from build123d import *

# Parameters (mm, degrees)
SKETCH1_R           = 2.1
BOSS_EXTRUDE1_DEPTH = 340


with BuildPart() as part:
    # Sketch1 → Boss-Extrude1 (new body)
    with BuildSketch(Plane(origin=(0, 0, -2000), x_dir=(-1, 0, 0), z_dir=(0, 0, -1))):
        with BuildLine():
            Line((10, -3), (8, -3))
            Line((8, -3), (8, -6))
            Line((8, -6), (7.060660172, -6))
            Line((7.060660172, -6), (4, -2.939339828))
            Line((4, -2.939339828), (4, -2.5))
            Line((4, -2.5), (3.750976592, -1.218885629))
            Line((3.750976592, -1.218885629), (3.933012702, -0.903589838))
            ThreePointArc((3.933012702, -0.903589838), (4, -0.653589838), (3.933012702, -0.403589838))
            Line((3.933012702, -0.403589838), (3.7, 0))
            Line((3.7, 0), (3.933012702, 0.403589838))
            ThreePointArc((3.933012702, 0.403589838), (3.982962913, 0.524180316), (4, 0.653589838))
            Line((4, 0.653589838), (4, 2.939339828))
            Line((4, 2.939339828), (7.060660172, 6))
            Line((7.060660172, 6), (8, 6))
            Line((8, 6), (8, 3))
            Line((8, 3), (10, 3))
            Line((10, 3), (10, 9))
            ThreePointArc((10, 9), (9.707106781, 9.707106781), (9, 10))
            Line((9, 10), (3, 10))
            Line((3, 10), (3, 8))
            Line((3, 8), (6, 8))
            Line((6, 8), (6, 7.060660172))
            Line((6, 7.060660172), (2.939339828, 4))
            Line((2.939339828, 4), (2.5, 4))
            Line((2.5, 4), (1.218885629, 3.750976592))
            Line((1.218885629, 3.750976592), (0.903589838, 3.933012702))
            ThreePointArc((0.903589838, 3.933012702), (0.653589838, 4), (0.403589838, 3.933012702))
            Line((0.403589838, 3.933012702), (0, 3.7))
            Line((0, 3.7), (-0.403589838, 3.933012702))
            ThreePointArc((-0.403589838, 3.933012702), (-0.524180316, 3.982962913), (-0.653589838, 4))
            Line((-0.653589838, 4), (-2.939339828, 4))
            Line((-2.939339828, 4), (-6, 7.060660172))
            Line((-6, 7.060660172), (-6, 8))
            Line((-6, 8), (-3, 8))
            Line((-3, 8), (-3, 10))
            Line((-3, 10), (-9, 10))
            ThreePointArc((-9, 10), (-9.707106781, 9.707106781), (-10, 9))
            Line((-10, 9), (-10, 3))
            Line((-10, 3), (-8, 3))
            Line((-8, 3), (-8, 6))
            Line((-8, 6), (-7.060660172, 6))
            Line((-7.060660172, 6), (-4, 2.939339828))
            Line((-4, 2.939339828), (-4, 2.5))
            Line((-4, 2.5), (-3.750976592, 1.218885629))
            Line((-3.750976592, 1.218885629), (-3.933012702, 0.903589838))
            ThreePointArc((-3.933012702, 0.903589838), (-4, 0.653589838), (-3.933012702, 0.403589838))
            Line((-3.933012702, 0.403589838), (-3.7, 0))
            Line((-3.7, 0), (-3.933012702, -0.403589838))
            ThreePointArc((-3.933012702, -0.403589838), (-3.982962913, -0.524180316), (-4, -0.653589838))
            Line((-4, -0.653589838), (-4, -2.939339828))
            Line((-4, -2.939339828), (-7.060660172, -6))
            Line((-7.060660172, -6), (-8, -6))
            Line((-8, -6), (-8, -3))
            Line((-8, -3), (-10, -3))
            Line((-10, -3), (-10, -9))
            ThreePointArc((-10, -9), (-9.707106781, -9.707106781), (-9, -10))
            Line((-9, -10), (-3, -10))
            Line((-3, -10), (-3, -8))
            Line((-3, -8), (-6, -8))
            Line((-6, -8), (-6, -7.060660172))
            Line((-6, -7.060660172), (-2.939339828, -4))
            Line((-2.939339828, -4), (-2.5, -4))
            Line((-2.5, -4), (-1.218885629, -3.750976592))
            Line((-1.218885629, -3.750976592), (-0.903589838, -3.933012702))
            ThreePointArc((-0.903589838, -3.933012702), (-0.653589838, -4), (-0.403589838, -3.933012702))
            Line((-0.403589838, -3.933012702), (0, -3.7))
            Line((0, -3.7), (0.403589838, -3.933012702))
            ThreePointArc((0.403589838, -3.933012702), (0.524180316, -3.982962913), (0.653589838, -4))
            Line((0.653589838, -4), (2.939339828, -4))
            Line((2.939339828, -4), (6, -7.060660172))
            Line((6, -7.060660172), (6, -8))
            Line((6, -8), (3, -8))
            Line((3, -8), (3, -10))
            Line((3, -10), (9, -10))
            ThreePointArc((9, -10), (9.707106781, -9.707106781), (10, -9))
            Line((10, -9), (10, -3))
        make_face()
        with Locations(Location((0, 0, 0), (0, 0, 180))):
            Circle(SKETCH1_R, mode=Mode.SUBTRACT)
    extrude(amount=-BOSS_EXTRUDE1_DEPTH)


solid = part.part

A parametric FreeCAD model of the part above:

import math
import FreeCAD as App
import Part
import Sketcher

V = App.Vector
Q = App.Units.Quantity

doc = App.newDocument("Part")
body = doc.addObject("PartDesign::Body", "Body")

sketch1 = body.newObject("Sketcher::SketchObject", "Sketch")
sketch1.AttachmentSupport = (doc.getObject("XY_Plane"), [""])
sketch1.MapMode = "FlatFace"
sketch1.AttachmentOffset = App.Placement(V(0, 0, -2000), App.Rotation())
sketch1.addGeometry([
    Part.LineSegment(V(-10, -3, 0), V(-8, -3, 0)),
    Part.LineSegment(V(-8, -3, 0), V(-8, -6, 0)),
    Part.LineSegment(V(-8, -6, 0), V(-7.06066, -6, 0)),
    Part.LineSegment(V(-7.06066, -6, 0), V(-4, -2.93934, 0)),
    Part.LineSegment(V(-4, -2.93934, 0), V(-4, -2.5, 0)),
    Part.LineSegment(V(-4, -2.5, 0), V(-3.750977, -1.218886, 0)),
    Part.LineSegment(V(-3.750977, -1.218886, 0), V(-3.933013, -0.90359, 0)),
    Part.ArcOfCircle(Part.Circle(V(-3.5, -0.65359, 0), V(0, 0, 1), 0.5), math.radians(150), math.radians(210)),
    Part.LineSegment(V(-3.933013, -0.40359, 0), V(-3.7, 0, 0)),
    Part.LineSegment(V(-3.7, 0, 0), V(-3.933013, 0.40359, 0)),
    Part.ArcOfCircle(Part.Circle(V(-3.5, 0.65359, 0), V(0, 0, 1), 0.5), math.radians(-180), math.radians(-150)),
    Part.LineSegment(V(-4, 0.65359, 0), V(-4, 2.93934, 0)),
    Part.LineSegment(V(-4, 2.93934, 0), V(-7.06066, 6, 0)),
    Part.LineSegment(V(-7.06066, 6, 0), V(-8, 6, 0)),
    Part.LineSegment(V(-8, 6, 0), V(-8, 3, 0)),
    Part.LineSegment(V(-8, 3, 0), V(-10, 3, 0)),
    Part.LineSegment(V(-10, 3, 0), V(-10, 9, 0)),
    Part.ArcOfCircle(Part.Circle(V(-9, 9, 0), V(0, 0, 1), 1), math.radians(90), math.radians(180)),
    Part.LineSegment(V(-9, 10, 0), V(-3, 10, 0)),
    Part.LineSegment(V(-3, 10, 0), V(-3, 8, 0)),
    Part.LineSegment(V(-3, 8, 0), V(-6, 8, 0)),
    Part.LineSegment(V(-6, 8, 0), V(-6, 7.06066, 0)),
    Part.LineSegment(V(-6, 7.06066, 0), V(-2.93934, 4, 0)),
    Part.LineSegment(V(-2.93934, 4, 0), V(-2.5, 4, 0)),
    Part.LineSegment(V(-2.5, 4, 0), V(-1.218886, 3.750977, 0)),
    Part.LineSegment(V(-1.218886, 3.750977, 0), V(-0.90359, 3.933013, 0)),
    Part.ArcOfCircle(Part.Circle(V(-0.65359, 3.5, 0), V(0, 0, 1), 0.5), math.radians(60), math.radians(120)),
    Part.LineSegment(V(-0.40359, 3.933013, 0), V(0, 3.7, 0)),
    Part.LineSegment(V(0, 3.7, 0), V(0.40359, 3.933013, 0)),
    Part.ArcOfCircle(Part.Circle(V(0.65359, 3.5, 0), V(0, 0, 1), 0.5), math.radians(90), math.radians(120)),
    Part.LineSegment(V(0.65359, 4, 0), V(2.93934, 4, 0)),
    Part.LineSegment(V(2.93934, 4, 0), V(6, 7.06066, 0)),
    Part.LineSegment(V(6, 7.06066, 0), V(6, 8, 0)),
    Part.LineSegment(V(6, 8, 0), V(3, 8, 0)),
    Part.LineSegment(V(3, 8, 0), V(3, 10, 0)),
    Part.LineSegment(V(3, 10, 0), V(9, 10, 0)),
    Part.ArcOfCircle(Part.Circle(V(9, 9, 0), V(0, 0, 1), 1), math.radians(0), math.radians(90)),
    Part.LineSegment(V(10, 9, 0), V(10, 3, 0)),
    Part.LineSegment(V(10, 3, 0), V(8, 3, 0)),
    Part.LineSegment(V(8, 3, 0), V(8, 6, 0)),
    Part.LineSegment(V(8, 6, 0), V(7.06066, 6, 0)),
    Part.LineSegment(V(7.06066, 6, 0), V(4, 2.93934, 0)),
    Part.LineSegment(V(4, 2.93934, 0), V(4, 2.5, 0)),
    Part.LineSegment(V(4, 2.5, 0), V(3.750977, 1.218886, 0)),
    Part.LineSegment(V(3.750977, 1.218886, 0), V(3.933013, 0.90359, 0)),
    Part.ArcOfCircle(Part.Circle(V(3.5, 0.65359, 0), V(0, 0, 1), 0.5), math.radians(-30), math.radians(30)),
    Part.LineSegment(V(3.933013, 0.40359, 0), V(3.7, 0, 0)),
    Part.LineSegment(V(3.7, 0, 0), V(3.933013, -0.40359, 0)),
    Part.ArcOfCircle(Part.Circle(V(3.5, -0.65359, 0), V(0, 0, 1), 0.5), math.radians(0), math.radians(30)),
    Part.LineSegment(V(4, -0.65359, 0), V(4, -2.93934, 0)),
    Part.LineSegment(V(4, -2.93934, 0), V(7.06066, -6, 0)),
    Part.LineSegment(V(7.06066, -6, 0), V(8, -6, 0)),
    Part.LineSegment(V(8, -6, 0), V(8, -3, 0)),
    Part.LineSegment(V(8, -3, 0), V(10, -3, 0)),
    Part.LineSegment(V(10, -3, 0), V(10, -9, 0)),
    Part.ArcOfCircle(Part.Circle(V(9, -9, 0), V(0, 0, 1), 1), math.radians(-90), math.radians(0)),
    Part.LineSegment(V(9, -10, 0), V(3, -10, 0)),
    Part.LineSegment(V(3, -10, 0), V(3, -8, 0)),
    Part.LineSegment(V(3, -8, 0), V(6, -8, 0)),
    Part.LineSegment(V(6, -8, 0), V(6, -7.06066, 0)),
    Part.LineSegment(V(6, -7.06066, 0), V(2.93934, -4, 0)),
    Part.LineSegment(V(2.93934, -4, 0), V(2.5, -4, 0)),
    Part.LineSegment(V(2.5, -4, 0), V(1.218886, -3.750977, 0)),
    Part.LineSegment(V(1.218886, -3.750977, 0), V(0.90359, -3.933013, 0)),
    Part.ArcOfCircle(Part.Circle(V(0.65359, -3.5, 0), V(0, 0, 1), 0.5), math.radians(-120), math.radians(-60)),
    Part.LineSegment(V(0.40359, -3.933013, 0), V(0, -3.7, 0)),
    Part.LineSegment(V(0, -3.7, 0), V(-0.40359, -3.933013, 0)),
    Part.ArcOfCircle(Part.Circle(V(-0.65359, -3.5, 0), V(0, 0, 1), 0.5), math.radians(-90), math.radians(-60)),
    Part.LineSegment(V(-0.65359, -4, 0), V(-2.93934, -4, 0)),
    Part.LineSegment(V(-2.93934, -4, 0), V(-6, -7.06066, 0)),
    Part.LineSegment(V(-6, -7.06066, 0), V(-6, -8, 0)),
    Part.LineSegment(V(-6, -8, 0), V(-3, -8, 0)),
    Part.LineSegment(V(-3, -8, 0), V(-3, -10, 0)),
    Part.LineSegment(V(-3, -10, 0), V(-9, -10, 0)),
    Part.ArcOfCircle(Part.Circle(V(-9, -9, 0), V(0, 0, 1), 1), math.radians(-180), math.radians(-90)),
    Part.LineSegment(V(-10, -9, 0), V(-10, -3, 0)),
    Part.Circle(V(0, 0, 0), V(0, 0, 1), 2.1),
], False)
sketch1.addConstraint([
    Sketcher.Constraint("Coincident", 0, 2, 1, 1),
    Sketcher.Constraint("Coincident", 1, 2, 2, 1),
    Sketcher.Constraint("Coincident", 2, 2, 3, 1),
    Sketcher.Constraint("Coincident", 3, 2, 4, 1),
    Sketcher.Constraint("Coincident", 4, 2, 5, 1),
    Sketcher.Constraint("Coincident", 5, 2, 6, 1),
    Sketcher.Constraint("Tangent", 6, 2, 7, 2),
    Sketcher.Constraint("Tangent", 7, 1, 8, 1),
    Sketcher.Constraint("Coincident", 8, 2, 9, 1),
    Sketcher.Constraint("Tangent", 9, 2, 10, 2),
    Sketcher.Constraint("Tangent", 10, 1, 11, 1),
    Sketcher.Constraint("Coincident", 11, 2, 12, 1),
    Sketcher.Constraint("Coincident", 12, 2, 13, 1),
    Sketcher.Constraint("Coincident", 13, 2, 14, 1),
    Sketcher.Constraint("Coincident", 14, 2, 15, 1),
    Sketcher.Constraint("Coincident", 15, 2, 16, 1),
    Sketcher.Constraint("Tangent", 16, 2, 17, 2),
    Sketcher.Constraint("Tangent", 17, 1, 18, 1),
    Sketcher.Constraint("Coincident", 18, 2, 19, 1),
    Sketcher.Constraint("Coincident", 19, 2, 20, 1),
    Sketcher.Constraint("Coincident", 20, 2, 21, 1),
    Sketcher.Constraint("Coincident", 21, 2, 22, 1),
    Sketcher.Constraint("Coincident", 22, 2, 23, 1),
    Sketcher.Constraint("Coincident", 23, 2, 24, 1),
    Sketcher.Constraint("Coincident", 24, 2, 25, 1),
    Sketcher.Constraint("Tangent", 25, 2, 26, 2),
    Sketcher.Constraint("Tangent", 26, 1, 27, 1),
    Sketcher.Constraint("Coincident", 27, 2, 28, 1),
    Sketcher.Constraint("Tangent", 28, 2, 29, 2),
    Sketcher.Constraint("Tangent", 29, 1, 30, 1),
    Sketcher.Constraint("Coincident", 30, 2, 31, 1),
    Sketcher.Constraint("Coincident", 31, 2, 32, 1),
    Sketcher.Constraint("Coincident", 32, 2, 33, 1),
    Sketcher.Constraint("Coincident", 33, 2, 34, 1),
    Sketcher.Constraint("Coincident", 34, 2, 35, 1),
    Sketcher.Constraint("Tangent", 35, 2, 36, 2),
    Sketcher.Constraint("Tangent", 36, 1, 37, 1),
    Sketcher.Constraint("Coincident", 37, 2, 38, 1),
    Sketcher.Constraint("Coincident", 38, 2, 39, 1),
    Sketcher.Constraint("Coincident", 39, 2, 40, 1),
    Sketcher.Constraint("Coincident", 40, 2, 41, 1),
    Sketcher.Constraint("Coincident", 41, 2, 42, 1),
    Sketcher.Constraint("Coincident", 42, 2, 43, 1),
    Sketcher.Constraint("Coincident", 43, 2, 44, 1),
    Sketcher.Constraint("Tangent", 44, 2, 45, 2),
    Sketcher.Constraint("Tangent", 45, 1, 46, 1),
    Sketcher.Constraint("Coincident", 46, 2, 47, 1),
    Sketcher.Constraint("Tangent", 47, 2, 48, 2),
    Sketcher.Constraint("Tangent", 48, 1, 49, 1),
    Sketcher.Constraint("Coincident", 49, 2, 50, 1),
    Sketcher.Constraint("Coincident", 50, 2, 51, 1),
    Sketcher.Constraint("Coincident", 51, 2, 52, 1),
    Sketcher.Constraint("Coincident", 52, 2, 53, 1),
    Sketcher.Constraint("Coincident", 53, 2, 54, 1),
    Sketcher.Constraint("Tangent", 54, 2, 55, 2),
    Sketcher.Constraint("Tangent", 55, 1, 56, 1),
    Sketcher.Constraint("Coincident", 56, 2, 57, 1),
    Sketcher.Constraint("Coincident", 57, 2, 58, 1),
    Sketcher.Constraint("Coincident", 58, 2, 59, 1),
    Sketcher.Constraint("Coincident", 59, 2, 60, 1),
    Sketcher.Constraint("Coincident", 60, 2, 61, 1),
    Sketcher.Constraint("Coincident", 61, 2, 62, 1),
    Sketcher.Constraint("Coincident", 62, 2, 63, 1),
    Sketcher.Constraint("Tangent", 63, 2, 64, 2),
    Sketcher.Constraint("Tangent", 64, 1, 65, 1),
    Sketcher.Constraint("Coincident", 65, 2, 66, 1),
    Sketcher.Constraint("Tangent", 66, 2, 67, 2),
    Sketcher.Constraint("Tangent", 67, 1, 68, 1),
    Sketcher.Constraint("Coincident", 68, 2, 69, 1),
    Sketcher.Constraint("Coincident", 69, 2, 70, 1),
    Sketcher.Constraint("Coincident", 70, 2, 71, 1),
    Sketcher.Constraint("Coincident", 71, 2, 72, 1),
    Sketcher.Constraint("Coincident", 72, 2, 73, 1),
    Sketcher.Constraint("Tangent", 73, 2, 74, 2),
    Sketcher.Constraint("Tangent", 74, 1, 75, 1),
    Sketcher.Constraint("Coincident", 75, 2, 0, 1),
    Sketcher.Constraint("Horizontal", 0),
    Sketcher.Constraint("Vertical", 1),
    Sketcher.Constraint("Horizontal", 2),
    Sketcher.Constraint("Vertical", 4),
    Sketcher.Constraint("Vertical", 11),
    Sketcher.Constraint("Horizontal", 13),
    Sketcher.Constraint("Vertical", 14),
    Sketcher.Constraint("Horizontal", 15),
    Sketcher.Constraint("Vertical", 16),
    Sketcher.Constraint("Horizontal", 18),
    Sketcher.Constraint("Vertical", 19),
    Sketcher.Constraint("Horizontal", 20),
    Sketcher.Constraint("Vertical", 21),
    Sketcher.Constraint("Horizontal", 23),
    Sketcher.Constraint("Horizontal", 30),
    Sketcher.Constraint("Vertical", 32),
    Sketcher.Constraint("Horizontal", 33),
    Sketcher.Constraint("Vertical", 34),
    Sketcher.Constraint("Horizontal", 35),
    Sketcher.Constraint("Vertical", 37),
    Sketcher.Constraint("Horizontal", 38),
    Sketcher.Constraint("Vertical", 39),
    Sketcher.Constraint("Horizontal", 40),
    Sketcher.Constraint("Vertical", 42),
    Sketcher.Constraint("Vertical", 49),
    Sketcher.Constraint("Horizontal", 51),
    Sketcher.Constraint("Vertical", 52),
    Sketcher.Constraint("Horizontal", 53),
    Sketcher.Constraint("Vertical", 54),
    Sketcher.Constraint("Horizontal", 56),
    Sketcher.Constraint("Vertical", 57),
    Sketcher.Constraint("Horizontal", 58),
    Sketcher.Constraint("Vertical", 59),
    Sketcher.Constraint("Horizontal", 61),
    Sketcher.Constraint("Horizontal", 68),
    Sketcher.Constraint("Vertical", 70),
    Sketcher.Constraint("Horizontal", 71),
    Sketcher.Constraint("Vertical", 72),
    Sketcher.Constraint("Horizontal", 73),
    Sketcher.Constraint("Vertical", 75),
    Sketcher.Constraint("Coincident", 76, 3, -1, 1),
    Sketcher.Constraint("Equal", 7, 10),
    Sketcher.Constraint("Equal", 10, 26),
    Sketcher.Constraint("Equal", 26, 29),
    Sketcher.Constraint("Equal", 17, 36),
    Sketcher.Constraint("Equal", 29, 45),
    Sketcher.Constraint("Equal", 45, 48),
    Sketcher.Constraint("Equal", 36, 55),
    Sketcher.Constraint("Equal", 48, 64),
    Sketcher.Constraint("Equal", 64, 67),
    Sketcher.Constraint("Equal", 55, 74),
    Sketcher.Constraint("Symmetric", 7, 3, 45, 3, -1, 1),
    Sketcher.Constraint("Symmetric", 10, 3, 48, 3, -1, 1),
    Sketcher.Constraint("Symmetric", 17, 3, 55, 3, -1, 1),
    Sketcher.Constraint("Symmetric", 26, 3, 64, 3, -1, 1),
    Sketcher.Constraint("Symmetric", 29, 3, 67, 3, -1, 1),
    Sketcher.Constraint("Symmetric", 36, 3, 74, 3, -1, 1),
    Sketcher.Constraint("Symmetric", 0, 2, 38, 2, -1, 1),
    Sketcher.Constraint("Symmetric", 2, 2, 40, 2, -1, 1),
    Sketcher.Constraint("Symmetric", 3, 2, 41, 2, -1, 1),
    Sketcher.Constraint("Symmetric", 5, 2, 43, 2, -1, 1),
    Sketcher.Constraint("Symmetric", 8, 2, 46, 2, -1, 1),
    Sketcher.Constraint("Symmetric", 12, 2, 50, 2, -1, 1),
    Sketcher.Constraint("Symmetric", 14, 2, 52, 2, -1, 1),
    Sketcher.Constraint("Symmetric", 19, 2, 57, 2, -1, 1),
    Sketcher.Constraint("Symmetric", 21, 2, 59, 2, -1, 1),
    Sketcher.Constraint("Symmetric", 22, 2, 60, 2, -1, 1),
    Sketcher.Constraint("Symmetric", 24, 2, 62, 2, -1, 1),
    Sketcher.Constraint("Symmetric", 27, 2, 65, 2, -1, 1),
    Sketcher.Constraint("Symmetric", 31, 2, 69, 2, -1, 1),
    Sketcher.Constraint("Symmetric", 33, 2, 71, 2, -1, 1),
    Sketcher.Constraint("Symmetric", 26, 3, 29, 3, -2),
    Sketcher.Constraint("Symmetric", 17, 3, 36, 3, -2),
    Sketcher.Constraint("Symmetric", 10, 3, 45, 3, -2),
    Sketcher.Constraint("Symmetric", 22, 2, 30, 2, -2),
    Sketcher.Constraint("Symmetric", 21, 2, 31, 2, -2),
    Sketcher.Constraint("Symmetric", 19, 2, 33, 2, -2),
    Sketcher.Constraint("Symmetric", 14, 2, 38, 2, -2),
    Sketcher.Constraint("Symmetric", 12, 2, 40, 2, -2),
    Sketcher.Constraint("Symmetric", 11, 2, 41, 2, -2),
    Sketcher.Constraint("PointOnObject", 8, 2, -1),
    Sketcher.Constraint("PointOnObject", 27, 2, -2),
    Sketcher.Constraint("Parallel", 6, 9),
    Sketcher.Constraint("Perpendicular", 3, 12),
    Sketcher.Constraint("Parallel", 12, 22),
    Sketcher.Constraint("Perpendicular", 5, 24),
    Sketcher.Constraint("Perpendicular", 9, 25),
    Sketcher.Constraint("Perpendicular", 8, 27),
    Sketcher.Constraint("Perpendicular", 24, 43),
    Sketcher.Constraint("Perpendicular", 41, 50),
    Sketcher.Constraint("Perpendicular", 43, 62),
    Sketcher.Constraint("Perpendicular", 60, 69),
    Sketcher.Constraint("Equal", 71, 1),
    Sketcher.Constraint("Equal", 61, 4),
    Sketcher.Constraint("Equal", 68, 11),
    Sketcher.Constraint("Equal", 73, 16),
    Sketcher.Constraint("Equal", 53, 19),
    Sketcher.Constraint("Equal", 51, 21),
    Sketcher.Constraint("Equal", 12, 22),
    Sketcher.Constraint("Equal", 9, 27),
    Sketcher.Constraint("Radius", 17, 1.0),
    Sketcher.Constraint("Diameter", 76, 4.2),
    Sketcher.Constraint("Radius", 7, 0.5),
    Sketcher.Constraint("DistanceX", 0, 1, 0, 2, 2.0),
    Sketcher.Constraint("DistanceX", 18, 1, 18, 2, 6.0),
    Sketcher.Constraint("DistanceX", 20, 2, 20, 1, 3.0),
    Sketcher.Constraint("Angle", 5, Q("79 deg")),
    Sketcher.Constraint("Angle", 6, Q("120 deg")),
    Sketcher.Constraint("DistanceX", 17, 3, -1, 1, 9.0),
    Sketcher.Constraint("DistanceX", 3, 2, -1, 1, 4.0),
    Sketcher.Constraint("DistanceY", 4, 2, -1, 1, 2.5),
    Sketcher.Constraint("DistanceX", 8, 2, -1, 1, 3.7),
    Sketcher.Constraint("DistanceX", 2, 1, 2, 2, 0.93934),
])
pad1 = body.newObject("PartDesign::Pad", "Pad")
pad1.Profile = sketch1
pad1.Length = 340

doc.recompute()
